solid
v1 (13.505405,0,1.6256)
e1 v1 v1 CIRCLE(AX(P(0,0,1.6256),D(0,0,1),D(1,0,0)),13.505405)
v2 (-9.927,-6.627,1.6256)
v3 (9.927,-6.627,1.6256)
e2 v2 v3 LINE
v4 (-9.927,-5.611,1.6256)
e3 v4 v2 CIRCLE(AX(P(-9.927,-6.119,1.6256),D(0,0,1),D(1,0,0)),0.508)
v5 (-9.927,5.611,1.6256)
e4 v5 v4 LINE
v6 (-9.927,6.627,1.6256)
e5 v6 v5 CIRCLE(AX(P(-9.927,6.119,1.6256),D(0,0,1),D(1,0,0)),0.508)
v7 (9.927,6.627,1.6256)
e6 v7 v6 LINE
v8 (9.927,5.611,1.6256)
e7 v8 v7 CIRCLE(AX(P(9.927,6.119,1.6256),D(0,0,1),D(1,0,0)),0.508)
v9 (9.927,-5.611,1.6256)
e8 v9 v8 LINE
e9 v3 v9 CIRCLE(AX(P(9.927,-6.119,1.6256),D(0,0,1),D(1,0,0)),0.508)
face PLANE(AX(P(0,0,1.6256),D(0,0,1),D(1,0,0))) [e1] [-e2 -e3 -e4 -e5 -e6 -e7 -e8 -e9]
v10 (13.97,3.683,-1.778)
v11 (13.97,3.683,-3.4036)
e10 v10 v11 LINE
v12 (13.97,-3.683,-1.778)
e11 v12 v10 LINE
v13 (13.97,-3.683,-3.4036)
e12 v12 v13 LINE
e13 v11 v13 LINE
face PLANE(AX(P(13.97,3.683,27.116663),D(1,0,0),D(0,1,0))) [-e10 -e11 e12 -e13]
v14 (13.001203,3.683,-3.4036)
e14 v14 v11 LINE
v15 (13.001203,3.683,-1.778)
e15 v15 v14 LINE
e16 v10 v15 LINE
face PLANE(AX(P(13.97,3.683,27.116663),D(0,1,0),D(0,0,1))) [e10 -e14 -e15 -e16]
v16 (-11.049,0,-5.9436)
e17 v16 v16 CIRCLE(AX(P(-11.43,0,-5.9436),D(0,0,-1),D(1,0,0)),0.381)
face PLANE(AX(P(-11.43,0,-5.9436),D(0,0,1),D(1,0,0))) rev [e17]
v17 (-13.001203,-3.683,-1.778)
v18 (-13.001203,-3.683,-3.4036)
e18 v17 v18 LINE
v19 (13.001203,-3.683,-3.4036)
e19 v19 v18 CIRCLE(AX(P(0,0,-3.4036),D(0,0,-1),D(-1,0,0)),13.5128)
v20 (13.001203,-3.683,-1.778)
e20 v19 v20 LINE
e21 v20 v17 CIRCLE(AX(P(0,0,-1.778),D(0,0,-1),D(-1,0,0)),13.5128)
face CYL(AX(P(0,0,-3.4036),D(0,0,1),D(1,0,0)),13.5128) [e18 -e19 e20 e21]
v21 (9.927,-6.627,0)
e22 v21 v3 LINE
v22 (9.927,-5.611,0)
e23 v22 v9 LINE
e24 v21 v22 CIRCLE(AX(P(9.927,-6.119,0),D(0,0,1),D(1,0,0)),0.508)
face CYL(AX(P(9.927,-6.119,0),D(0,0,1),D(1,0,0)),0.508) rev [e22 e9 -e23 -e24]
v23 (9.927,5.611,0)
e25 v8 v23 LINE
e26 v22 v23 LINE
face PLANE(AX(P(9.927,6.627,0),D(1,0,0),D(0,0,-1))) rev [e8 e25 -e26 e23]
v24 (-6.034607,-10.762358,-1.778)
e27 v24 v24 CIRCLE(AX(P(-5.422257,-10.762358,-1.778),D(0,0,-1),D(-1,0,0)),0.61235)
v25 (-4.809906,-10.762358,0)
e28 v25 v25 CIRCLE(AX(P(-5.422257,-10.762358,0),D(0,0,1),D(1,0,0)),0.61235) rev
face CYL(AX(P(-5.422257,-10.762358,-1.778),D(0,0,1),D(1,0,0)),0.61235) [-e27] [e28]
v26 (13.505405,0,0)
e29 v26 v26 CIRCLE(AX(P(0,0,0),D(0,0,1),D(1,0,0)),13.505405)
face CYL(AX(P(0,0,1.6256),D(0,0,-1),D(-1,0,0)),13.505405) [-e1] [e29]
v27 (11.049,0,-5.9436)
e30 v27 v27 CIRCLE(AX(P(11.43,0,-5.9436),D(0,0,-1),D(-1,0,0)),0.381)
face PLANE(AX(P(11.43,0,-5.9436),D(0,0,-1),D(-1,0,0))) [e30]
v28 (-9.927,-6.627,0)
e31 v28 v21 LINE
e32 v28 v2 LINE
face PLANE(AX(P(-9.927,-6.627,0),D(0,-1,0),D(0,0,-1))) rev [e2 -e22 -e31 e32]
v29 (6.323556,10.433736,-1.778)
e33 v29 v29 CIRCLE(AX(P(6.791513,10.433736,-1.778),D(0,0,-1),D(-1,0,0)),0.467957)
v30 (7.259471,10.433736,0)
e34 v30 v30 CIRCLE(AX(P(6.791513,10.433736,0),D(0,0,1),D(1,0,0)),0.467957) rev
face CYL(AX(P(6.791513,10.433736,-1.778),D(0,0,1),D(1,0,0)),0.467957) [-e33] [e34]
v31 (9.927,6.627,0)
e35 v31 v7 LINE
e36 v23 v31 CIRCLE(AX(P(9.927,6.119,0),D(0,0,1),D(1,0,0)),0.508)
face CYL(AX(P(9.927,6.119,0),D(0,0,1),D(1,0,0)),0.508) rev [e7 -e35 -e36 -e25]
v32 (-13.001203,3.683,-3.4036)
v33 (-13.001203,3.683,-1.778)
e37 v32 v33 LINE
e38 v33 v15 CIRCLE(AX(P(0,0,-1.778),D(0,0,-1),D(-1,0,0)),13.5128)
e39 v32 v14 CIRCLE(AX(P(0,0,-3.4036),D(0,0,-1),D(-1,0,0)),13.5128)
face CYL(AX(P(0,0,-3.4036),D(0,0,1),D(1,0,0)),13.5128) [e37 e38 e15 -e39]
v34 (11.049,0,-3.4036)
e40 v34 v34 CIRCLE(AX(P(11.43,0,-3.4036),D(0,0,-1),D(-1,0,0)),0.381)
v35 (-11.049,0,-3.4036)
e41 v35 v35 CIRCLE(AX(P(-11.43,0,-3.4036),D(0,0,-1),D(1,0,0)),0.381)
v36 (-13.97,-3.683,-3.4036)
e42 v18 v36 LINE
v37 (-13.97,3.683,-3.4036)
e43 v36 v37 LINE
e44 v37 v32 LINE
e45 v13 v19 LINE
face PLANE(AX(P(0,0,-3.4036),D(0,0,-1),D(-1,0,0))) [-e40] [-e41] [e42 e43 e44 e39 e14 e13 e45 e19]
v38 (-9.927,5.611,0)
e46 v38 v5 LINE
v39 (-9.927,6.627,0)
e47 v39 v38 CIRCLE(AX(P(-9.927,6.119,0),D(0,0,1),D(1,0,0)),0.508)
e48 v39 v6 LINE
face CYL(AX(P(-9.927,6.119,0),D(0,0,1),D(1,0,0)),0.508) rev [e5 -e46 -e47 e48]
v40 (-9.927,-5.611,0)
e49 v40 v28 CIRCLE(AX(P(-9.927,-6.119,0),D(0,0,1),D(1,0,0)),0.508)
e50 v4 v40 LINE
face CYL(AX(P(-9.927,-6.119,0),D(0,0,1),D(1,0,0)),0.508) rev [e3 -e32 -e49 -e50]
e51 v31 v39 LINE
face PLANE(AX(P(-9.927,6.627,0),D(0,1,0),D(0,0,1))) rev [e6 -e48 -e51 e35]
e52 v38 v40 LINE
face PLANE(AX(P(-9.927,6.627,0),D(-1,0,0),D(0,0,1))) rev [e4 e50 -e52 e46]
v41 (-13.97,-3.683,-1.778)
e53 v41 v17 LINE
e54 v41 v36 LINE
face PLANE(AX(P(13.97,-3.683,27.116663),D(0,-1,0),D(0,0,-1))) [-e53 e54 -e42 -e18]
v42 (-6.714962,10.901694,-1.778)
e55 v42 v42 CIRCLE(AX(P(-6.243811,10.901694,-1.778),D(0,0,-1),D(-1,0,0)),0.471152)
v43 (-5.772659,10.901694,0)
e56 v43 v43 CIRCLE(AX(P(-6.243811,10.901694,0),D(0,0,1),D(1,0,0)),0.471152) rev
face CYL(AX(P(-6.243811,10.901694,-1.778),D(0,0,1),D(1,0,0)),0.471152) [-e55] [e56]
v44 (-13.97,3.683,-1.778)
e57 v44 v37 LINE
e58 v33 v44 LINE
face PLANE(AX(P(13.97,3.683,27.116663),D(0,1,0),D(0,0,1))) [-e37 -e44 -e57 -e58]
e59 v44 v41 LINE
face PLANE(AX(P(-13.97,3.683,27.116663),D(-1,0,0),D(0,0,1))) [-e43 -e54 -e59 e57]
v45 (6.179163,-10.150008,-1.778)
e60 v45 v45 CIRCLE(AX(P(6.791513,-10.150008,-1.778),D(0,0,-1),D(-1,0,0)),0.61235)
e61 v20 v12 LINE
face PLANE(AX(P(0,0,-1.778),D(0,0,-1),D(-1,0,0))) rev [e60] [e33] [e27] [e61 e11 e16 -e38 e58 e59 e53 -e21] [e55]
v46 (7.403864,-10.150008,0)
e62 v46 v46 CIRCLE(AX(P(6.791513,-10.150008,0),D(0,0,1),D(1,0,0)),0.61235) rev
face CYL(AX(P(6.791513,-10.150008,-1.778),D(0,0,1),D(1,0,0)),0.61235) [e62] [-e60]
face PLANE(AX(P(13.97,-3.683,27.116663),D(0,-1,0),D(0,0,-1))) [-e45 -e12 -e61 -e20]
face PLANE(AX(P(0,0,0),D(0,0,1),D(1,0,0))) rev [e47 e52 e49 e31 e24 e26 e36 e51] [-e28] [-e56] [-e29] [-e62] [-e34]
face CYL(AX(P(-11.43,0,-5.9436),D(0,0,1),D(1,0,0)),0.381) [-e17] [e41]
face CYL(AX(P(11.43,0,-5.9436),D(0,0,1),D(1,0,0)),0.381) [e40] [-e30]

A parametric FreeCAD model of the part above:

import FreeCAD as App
import Part
import Sketcher

V = App.Vector
Q = App.Units.Quantity

doc = App.newDocument("Part")
body = doc.addObject("PartDesign::Body", "Body")

# Sketch on XY plane
sketch1 = doc.addObject("Sketcher::SketchObject", "Sketch")
body.addObject(sketch1)
sketch1.AttachmentSupport = (doc.XY_Plane, [""])
sketch1.MapMode = "FlatFace"
sketch1.addGeometry(Part.Circle(V(0, 0, 0), V(0, 0, 1), 14), False)
sketch1.addConstraint(Sketcher.Constraint("Coincident", 0, 3, -1, 1))
sketch1.addConstraint(Sketcher.Constraint("Diameter", 0, 27.010809))
pad1 = doc.addObject("PartDesign::Pad", "Pad")
body.addObject(pad1)
pad1.Profile = sketch1
pad1.Length = Q("0.064 in")

# Sketch on XY plane
sketch2 = doc.addObject("Sketcher::SketchObject", "Sketch001")
body.addObject(sketch2)
sketch2.AttachmentSupport = (doc.XY_Plane, [""])
sketch2.MapMode = "FlatFace"
sketch2.AttachmentOffset = App.Placement(V(0, 0, 0.064 * 25.4), App.Rotation())
sketch2.addGeometry(Part.LineSegment(V(-10, 7, 0), V(-10, -7, 0)), False)
sketch2.addGeometry(Part.LineSegment(V(-10, -7, 0), V(10, -7, 0)), False)
sketch2.addGeometry(Part.LineSegment(V(10, -7, 0), V(10, 7, 0)), False)
sketch2.addGeometry(Part.LineSegment(V(10, 7, 0), V(-10, 7, 0)), False)
sketch2.addConstraint(Sketcher.Constraint("Coincident", 0, 2, 1, 1))
sketch2.addConstraint(Sketcher.Constraint("Coincident", 1, 2, 2, 1))
sketch2.addConstraint(Sketcher.Constraint("Coincident", 2, 2, 3, 1))
sketch2.addConstraint(Sketcher.Constraint("Coincident", 3, 2, 0, 1))
sketch2.addConstraint(Sketcher.Constraint("Vertical", 0))
sketch2.addConstraint(Sketcher.Constraint("Horizontal", 1))
sketch2.addConstraint(Sketcher.Constraint("Vertical", 2))
sketch2.addConstraint(Sketcher.Constraint("Horizontal", 3))
sketch2.addConstraint(Sketcher.Constraint("Symmetric", 0, 2, 2, 2, -1, 1))
sketch2.addConstraint(Sketcher.Constraint("DistanceX", 1, 1, 1, 2, 19.854))
sketch2.addConstraint(Sketcher.Constraint("DistanceY", 0, 2, 0, 1, 13.254))
pocket1 = doc.addObject("PartDesign::Pocket", "Pocket")
body.addObject(pocket1)
pocket1.Profile = sketch2
pocket1.Type = "ThroughAll"

# Sketch on XY plane
sketch3 = doc.addObject("Sketcher::SketchObject", "Sketch002")
body.addObject(sketch3)
sketch3.AttachmentSupport = (doc.XY_Plane, [""])
sketch3.MapMode = "FlatFace"
sketch3.AttachmentOffset = App.Placement(V(0, 0, 0.064 * 25.4), App.Rotation())
sketch3.addGeometry(Part.Circle(V(-9.9, 6.1, 0), V(0, 0, 1), 0.5), False)
sketch3.addGeometry(Part.Circle(V(-9.9, -6.1, 0), V(0, 0, 1), 0.5), False)
sketch3.addGeometry(Part.Circle(V(9.9, -6.1, 0), V(0, 0, 1), 0.5), False)
sketch3.addGeometry(Part.Circle(V(9.9, 6.1, 0), V(0, 0, 1), 0.5), False)
sketch3.addConstraint(Sketcher.Constraint("Equal", 0, 1))
sketch3.addConstraint(Sketcher.Constraint("Equal", 1, 2))
sketch3.addConstraint(Sketcher.Constraint("Equal", 2, 3))
sketch3.addConstraint(Sketcher.Constraint("Symmetric", 0, 3, 2, 3, -1, 1))
sketch3.addConstraint(Sketcher.Constraint("Symmetric", 1, 3, 3, 3, -1, 1))
sketch3.addConstraint(Sketcher.Constraint("Symmetric", 1, 3, 2, 3, -2))
sketch3.addConstraint(Sketcher.Constraint("Diameter", 0, Q("0.04 in")))
sketch3.addConstraint(Sketcher.Constraint("DistanceX", 0, 3, -1, 1, 9.927))
sketch3.addConstraint(Sketcher.Constraint("DistanceY", -1, 1, 0, 3, 6.119))
pocket2 = doc.addObject("PartDesign::Pocket", "Pocket001")
body.addObject(pocket2)
pocket2.Profile = sketch3
pocket2.Type = "ThroughAll"

# Sketch on XY plane
sketch4 = doc.addObject("Sketcher::SketchObject", "Sketch003")
body.addObject(sketch4)
sketch4.AttachmentSupport = (doc.XY_Plane, [""])
sketch4.MapMode = "FlatFace"
sketch4.addGeometry(Part.Circle(V(6.79, 10.43, 0), V(0, 0, 1), 0.47), False)
sketch4.addGeometry(Part.Circle(V(-6.24, 10.9, 0), V(0, 0, 1), 0.47), False)
sketch4.addGeometry(Part.Circle(V(-5.42, -10.76, 0), V(0, 0, 1), 0.61), False)
sketch4.addGeometry(Part.Circle(V(6.79, -10.15, 0), V(0, 0, 1), 0.61), False)
sketch4.addConstraint(Sketcher.Constraint("Equal", 2, 3))
sketch4.addConstraint(Sketcher.Constraint("Vertical", 0, 3, 3, 3))
sketch4.addConstraint(Sketcher.Constraint("Diameter", 2, 1.2247))
sketch4.addConstraint(Sketcher.Constraint("Diameter", 0, 0.935915))
sketch4.addConstraint(Sketcher.Constraint("Diameter", 1, 0.942303))
sketch4.addConstraint(Sketcher.Constraint("DistanceY", 3, 3, 1, 3, 21.051701))
sketch4.addConstraint(Sketcher.Constraint("DistanceX", 1, 3, -1, 1, 6.243811))
sketch4.addConstraint(Sketcher.Constraint("DistanceY", 2, 3, 1, 3, 21.664052))
sketch4.addConstraint(Sketcher.Constraint("DistanceX", 2, 3, 0, 3, 12.21377))
sketch4.addConstraint(Sketcher.Constraint("DistanceX", -1, 1, 0, 3, 6.791513))
sketch4.addConstraint(Sketcher.Constraint("DistanceY", -1, 1, 0, 3, 10.433736))
sketch4.addConstraint(Sketcher.Constraint("DistanceY", -1, 1, 1, 3, 10.901694))
pad2 = doc.addObject("PartDesign::Pad", "Pad001")
body.addObject(pad2)
pad2.Profile = sketch4
pad2.Length = Q("0.07 in")
pad2.Reversed = True

# Sketch on XY plane
sketch5 = doc.addObject("Sketcher::SketchObject", "Sketch004")
body.addObject(sketch5)
sketch5.AttachmentSupport = (doc.XY_Plane, [""])
sketch5.MapMode = "FlatFace"
sketch5.AttachmentOffset = App.Placement(V(0, 0, -0.07 * 25.4), App.Rotation())
sketch5.addGeometry(Part.Circle(V(0, 0, 0), V(0, 0, 1), 14), False)
sketch5.addConstraint(Sketcher.Constraint("Coincident", 0, 3, -1, 1))
sketch5.addConstraint(Sketcher.Constraint("Diameter", 0, Q("1.064 in")))
pad3 = doc.addObject("PartDesign::Pad", "Pad002")
body.addObject(pad3)
pad3.Profile = sketch5
pad3.Length = Q("0.064 in")
pad3.Reversed = True

# Sketch on XY plane
sketch6 = doc.addObject("Sketcher::SketchObject", "Sketch005")
body.addObject(sketch6)
sketch6.AttachmentSupport = (doc.XY_Plane, [""])
sketch6.MapMode = "FlatFace"
sketch6.AttachmentOffset = App.Placement(V(0, 0, -0.134 * 25.4), App.Rotation())
sketch6.addGeometry(Part.LineSegment(V(14, 4, 0), V(14, -4, 0)), False)
sketch6.addGeometry(Part.LineSegment(V(14, -4, 0), V(-14, -4, 0)), False)
sketch6.addGeometry(Part.LineSegment(V(-14, -4, 0), V(-14, 4, 0)), False)
sketch6.addGeometry(Part.LineSegment(V(-14, 4, 0), V(14, 4, 0)), False)
sketch6.addConstraint(Sketcher.Constraint("Coincident", 0, 2, 1, 1))
sketch6.addConstraint(Sketcher.Constraint("Coincident", 1, 2, 2, 1))
sketch6.addConstraint(Sketcher.Constraint("Coincident", 2, 2, 3, 1))
sketch6.addConstraint(Sketcher.Constraint("Coincident", 3, 2, 0, 1))
sketch6.addConstraint(Sketcher.Constraint("Vertical", 0))
sketch6.addConstraint(Sketcher.Constraint("Horizontal", 1))
sketch6.addConstraint(Sketcher.Constraint("Vertical", 2))
sketch6.addConstraint(Sketcher.Constraint("Horizontal", 3))
sketch6.addConstraint(Sketcher.Constraint("Symmetric", 0, 2, 2, 2, -1, 1))
sketch6.addConstraint(Sketcher.Constraint("DistanceX", 1, 2, 1, 1, Q("1.1 in")))
sketch6.addConstraint(Sketcher.Constraint("DistanceY", 0, 2, 0, 1, Q("0.29 in")))
pad4 = doc.addObject("PartDesign::Pad", "Pad003")
body.addObject(pad4)
pad4.Profile = sketch6
pad4.Length = Q("0.064 in")

# Sketch on XY plane
sketch7 = doc.addObject("Sketcher::SketchObject", "Sketch006")
body.addObject(sketch7)
sketch7.AttachmentSupport = (doc.XY_Plane, [""])
sketch7.MapMode = "FlatFace"
sketch7.AttachmentOffset = App.Placement(V(0, 0, -0.134 * 25.4), App.Rotation())
sketch7.addGeometry(Part.Circle(V(11.43, 0, 0), V(0, 0, 1), 0.38), False)
sketch7.addGeometry(Part.Circle(V(-11.43, 0, 0), V(0, 0, 1), 0.38), False)
sketch7.addConstraint(Sketcher.Constraint("Equal", 0, 1))
sketch7.addConstraint(Sketcher.Constraint("Symmetric", 0, 3, 1, 3, -1, 1))
sketch7.addConstraint(Sketcher.Constraint("PointOnObject", 0, 3, -1))
sketch7.addConstraint(Sketcher.Constraint("Diameter", 0, Q("0.03 in")))
sketch7.addConstraint(Sketcher.Constraint("DistanceX", 1, 3, 0, 3, Q("0.9 in")))
pad5 = doc.addObject("PartDesign::Pad", "Pad004")
body.addObject(pad5)
pad5.Profile = sketch7
pad5.Length = Q("0.1 in")
pad5.Reversed = True

doc.recompute()
